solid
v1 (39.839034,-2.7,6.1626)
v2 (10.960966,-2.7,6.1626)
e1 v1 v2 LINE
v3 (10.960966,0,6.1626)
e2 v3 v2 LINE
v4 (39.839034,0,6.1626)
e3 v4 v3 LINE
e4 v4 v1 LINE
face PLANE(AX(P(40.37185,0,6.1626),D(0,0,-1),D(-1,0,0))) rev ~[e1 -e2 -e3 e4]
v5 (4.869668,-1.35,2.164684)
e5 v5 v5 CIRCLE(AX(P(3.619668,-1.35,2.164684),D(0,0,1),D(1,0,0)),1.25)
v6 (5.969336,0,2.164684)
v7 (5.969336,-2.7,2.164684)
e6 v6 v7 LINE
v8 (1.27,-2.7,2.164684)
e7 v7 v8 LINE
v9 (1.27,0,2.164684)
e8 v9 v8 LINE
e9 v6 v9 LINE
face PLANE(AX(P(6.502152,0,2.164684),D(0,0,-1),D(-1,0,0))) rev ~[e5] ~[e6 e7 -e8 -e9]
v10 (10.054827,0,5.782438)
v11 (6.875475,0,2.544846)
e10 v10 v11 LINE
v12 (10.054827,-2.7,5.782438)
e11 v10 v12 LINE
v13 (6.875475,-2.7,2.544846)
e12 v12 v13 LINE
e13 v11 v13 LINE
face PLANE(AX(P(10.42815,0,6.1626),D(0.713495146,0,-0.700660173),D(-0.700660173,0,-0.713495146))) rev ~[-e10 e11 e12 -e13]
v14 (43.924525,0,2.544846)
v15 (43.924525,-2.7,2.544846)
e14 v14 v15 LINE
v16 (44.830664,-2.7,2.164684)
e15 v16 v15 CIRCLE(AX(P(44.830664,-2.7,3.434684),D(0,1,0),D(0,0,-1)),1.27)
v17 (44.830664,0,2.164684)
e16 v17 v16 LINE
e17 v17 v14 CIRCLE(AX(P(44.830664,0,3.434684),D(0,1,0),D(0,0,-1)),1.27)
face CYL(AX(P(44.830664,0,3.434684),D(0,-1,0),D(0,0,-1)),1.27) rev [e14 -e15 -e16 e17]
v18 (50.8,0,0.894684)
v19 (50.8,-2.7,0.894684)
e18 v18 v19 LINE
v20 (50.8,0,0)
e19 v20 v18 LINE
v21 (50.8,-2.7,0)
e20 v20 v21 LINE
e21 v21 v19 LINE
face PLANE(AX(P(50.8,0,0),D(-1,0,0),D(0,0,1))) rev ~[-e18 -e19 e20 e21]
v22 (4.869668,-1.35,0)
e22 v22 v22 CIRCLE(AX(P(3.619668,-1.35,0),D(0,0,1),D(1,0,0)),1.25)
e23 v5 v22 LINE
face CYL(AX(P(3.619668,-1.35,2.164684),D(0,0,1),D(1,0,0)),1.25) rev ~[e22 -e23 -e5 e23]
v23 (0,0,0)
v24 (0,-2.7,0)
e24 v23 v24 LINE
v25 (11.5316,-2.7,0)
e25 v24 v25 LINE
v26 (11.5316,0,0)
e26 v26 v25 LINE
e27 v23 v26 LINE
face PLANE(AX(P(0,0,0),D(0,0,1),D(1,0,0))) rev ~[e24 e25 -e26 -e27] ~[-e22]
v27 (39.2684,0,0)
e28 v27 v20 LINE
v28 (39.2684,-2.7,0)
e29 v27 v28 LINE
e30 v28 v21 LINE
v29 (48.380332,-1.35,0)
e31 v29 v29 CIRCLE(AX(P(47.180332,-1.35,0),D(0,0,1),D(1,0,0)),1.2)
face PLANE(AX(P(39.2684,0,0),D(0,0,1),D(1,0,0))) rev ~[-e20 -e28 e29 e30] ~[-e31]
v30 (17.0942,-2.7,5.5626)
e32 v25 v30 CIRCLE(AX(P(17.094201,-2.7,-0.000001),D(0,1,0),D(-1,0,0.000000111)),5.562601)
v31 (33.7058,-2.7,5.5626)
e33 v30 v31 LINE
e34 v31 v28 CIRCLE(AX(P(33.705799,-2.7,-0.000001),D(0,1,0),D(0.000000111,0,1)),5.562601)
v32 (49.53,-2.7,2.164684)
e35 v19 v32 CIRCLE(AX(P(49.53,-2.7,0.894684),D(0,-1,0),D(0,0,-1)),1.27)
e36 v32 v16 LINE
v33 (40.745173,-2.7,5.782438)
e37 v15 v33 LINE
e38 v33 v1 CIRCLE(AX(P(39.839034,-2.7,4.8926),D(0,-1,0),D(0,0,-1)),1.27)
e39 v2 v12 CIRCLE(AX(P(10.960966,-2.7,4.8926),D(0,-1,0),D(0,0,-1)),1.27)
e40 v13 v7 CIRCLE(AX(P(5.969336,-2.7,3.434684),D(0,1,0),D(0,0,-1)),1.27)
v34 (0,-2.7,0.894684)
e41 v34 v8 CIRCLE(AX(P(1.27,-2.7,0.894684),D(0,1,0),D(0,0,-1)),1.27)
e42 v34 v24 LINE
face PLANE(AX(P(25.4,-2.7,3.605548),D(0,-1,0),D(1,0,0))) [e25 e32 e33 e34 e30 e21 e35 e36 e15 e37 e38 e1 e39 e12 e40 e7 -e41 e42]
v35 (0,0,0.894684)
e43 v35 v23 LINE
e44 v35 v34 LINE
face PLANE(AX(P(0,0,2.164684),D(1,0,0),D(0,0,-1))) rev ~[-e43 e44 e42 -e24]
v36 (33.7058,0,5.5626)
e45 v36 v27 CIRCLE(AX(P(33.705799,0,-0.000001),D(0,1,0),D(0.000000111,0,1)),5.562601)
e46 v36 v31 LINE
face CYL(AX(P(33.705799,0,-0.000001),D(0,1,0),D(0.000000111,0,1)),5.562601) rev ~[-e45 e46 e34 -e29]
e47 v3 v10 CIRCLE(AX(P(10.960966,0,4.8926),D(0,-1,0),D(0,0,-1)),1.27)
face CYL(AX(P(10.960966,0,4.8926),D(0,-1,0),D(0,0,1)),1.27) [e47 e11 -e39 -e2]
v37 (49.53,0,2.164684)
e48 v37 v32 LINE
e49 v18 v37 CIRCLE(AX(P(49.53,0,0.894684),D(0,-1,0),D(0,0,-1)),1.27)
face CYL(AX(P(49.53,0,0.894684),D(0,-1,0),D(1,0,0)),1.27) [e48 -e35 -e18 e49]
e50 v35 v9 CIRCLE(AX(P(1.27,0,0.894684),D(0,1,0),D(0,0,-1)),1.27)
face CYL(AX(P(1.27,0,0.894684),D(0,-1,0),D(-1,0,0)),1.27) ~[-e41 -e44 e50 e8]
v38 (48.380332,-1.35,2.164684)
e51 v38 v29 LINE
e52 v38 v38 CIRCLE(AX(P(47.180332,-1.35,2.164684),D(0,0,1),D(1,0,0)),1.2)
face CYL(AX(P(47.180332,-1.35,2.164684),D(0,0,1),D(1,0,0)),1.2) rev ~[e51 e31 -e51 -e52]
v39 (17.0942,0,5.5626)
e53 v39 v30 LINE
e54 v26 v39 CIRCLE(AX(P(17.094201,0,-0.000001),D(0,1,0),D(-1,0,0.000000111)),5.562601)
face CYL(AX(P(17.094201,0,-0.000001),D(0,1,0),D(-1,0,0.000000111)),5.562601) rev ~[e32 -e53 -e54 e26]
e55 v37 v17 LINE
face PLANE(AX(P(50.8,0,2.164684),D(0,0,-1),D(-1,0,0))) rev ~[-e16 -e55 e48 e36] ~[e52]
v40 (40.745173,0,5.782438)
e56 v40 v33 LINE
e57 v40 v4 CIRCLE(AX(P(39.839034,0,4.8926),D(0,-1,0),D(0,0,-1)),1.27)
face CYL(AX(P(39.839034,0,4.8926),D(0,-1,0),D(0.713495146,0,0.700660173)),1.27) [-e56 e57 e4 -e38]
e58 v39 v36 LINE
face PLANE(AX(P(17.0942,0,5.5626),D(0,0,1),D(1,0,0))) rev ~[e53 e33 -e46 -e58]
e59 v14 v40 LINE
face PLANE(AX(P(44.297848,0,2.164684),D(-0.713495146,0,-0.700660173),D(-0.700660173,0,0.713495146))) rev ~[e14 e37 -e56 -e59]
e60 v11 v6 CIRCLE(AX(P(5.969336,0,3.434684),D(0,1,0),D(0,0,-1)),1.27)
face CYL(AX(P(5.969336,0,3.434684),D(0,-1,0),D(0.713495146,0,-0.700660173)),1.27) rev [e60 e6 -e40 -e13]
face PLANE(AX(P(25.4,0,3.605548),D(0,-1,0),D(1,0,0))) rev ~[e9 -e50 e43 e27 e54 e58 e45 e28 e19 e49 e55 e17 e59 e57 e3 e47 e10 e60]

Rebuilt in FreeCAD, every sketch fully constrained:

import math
import FreeCAD as App
import Part
import Sketcher
from FreeCAD import Vector
Q = App.Units.Quantity


def edges_at(feature, points):
    """Names of the edges that pass closest to the given points."""
    edges = feature.Shape.Edges
    near = lambda p: min(range(len(edges)), key=lambda i: edges[i].distToShape(Part.Vertex(*p))[0])
    return sorted({f"Edge{near(p) + 1}" for p in points})

doc = App.newDocument("Part")
body = doc.addObject("PartDesign::Body", "Body")

sketch1 = body.newObject("Sketcher::SketchObject", "Sketch")
sketch1.AttachmentSupport = (doc.getObject("XZ_Plane"), [""])
sketch1.MapMode = "FlatFace"
sketch1.addGeometry(Part.LineSegment(Vector(0, 2.2, 0), Vector(0, 0, 0)), False)
sketch1.addGeometry(Part.LineSegment(Vector(0, 0, 0), Vector(11.5, 0, 0)), False)
sketch1.addGeometry(Part.ArcOfCircle(Part.Circle(Vector(17.1, 0, 0), Vector(0, 0, 1), 5.6), math.radians(90), math.radians(180)), False)
sketch1.addGeometry(Part.LineSegment(Vector(17.1, 5.6, 0), Vector(33.7, 5.6, 0)), False)
sketch1.addGeometry(Part.ArcOfCircle(Part.Circle(Vector(33.7, 0, 0), Vector(0, 0, 1), 5.6), math.radians(0), math.radians(90)), False)
sketch1.addGeometry(Part.LineSegment(Vector(39.3, 0, 0), Vector(50.8, 0, 0)), False)
sketch1.addGeometry(Part.LineSegment(Vector(50.8, 0, 0), Vector(50.8, 2.2, 0)), False)
sketch1.addGeometry(Part.LineSegment(Vector(50.8, 2.2, 0), Vector(44.3, 2.2, 0)), False)
sketch1.addGeometry(Part.LineSegment(Vector(44.3, 2.2, 0), Vector(40.4, 6.2, 0)), False)
sketch1.addGeometry(Part.LineSegment(Vector(40.4, 6.2, 0), Vector(10.4, 6.2, 0)), False)
sketch1.addGeometry(Part.LineSegment(Vector(10.4, 6.2, 0), Vector(6.5, 2.2, 0)), False)
sketch1.addGeometry(Part.LineSegment(Vector(6.5, 2.2, 0), Vector(0, 2.2, 0)), False)
sketch1.addConstraint(Sketcher.Constraint("Coincident", 0, 2, 1, 1))
sketch1.addConstraint(Sketcher.Constraint("Coincident", 1, 2, 2, 2))
sketch1.addConstraint(Sketcher.Constraint("Tangent", 2, 1, 3, 1))
sketch1.addConstraint(Sketcher.Constraint("Tangent", 3, 2, 4, 2))
sketch1.addConstraint(Sketcher.Constraint("Coincident", 4, 1, 5, 1))
sketch1.addConstraint(Sketcher.Constraint("Coincident", 5, 2, 6, 1))
sketch1.addConstraint(Sketcher.Constraint("Coincident", 6, 2, 7, 1))
sketch1.addConstraint(Sketcher.Constraint("Coincident", 7, 2, 8, 1))
sketch1.addConstraint(Sketcher.Constraint("Coincident", 8, 2, 9, 1))
sketch1.addConstraint(Sketcher.Constraint("Coincident", 9, 2, 10, 1))
sketch1.addConstraint(Sketcher.Constraint("Coincident", 10, 2, 11, 1))
sketch1.addConstraint(Sketcher.Constraint("Coincident", 11, 2, 0, 1))
sketch1.addConstraint(Sketcher.Constraint("Vertical", 0))
sketch1.addConstraint(Sketcher.Constraint("Horizontal", 1))
sketch1.addConstraint(Sketcher.Constraint("Horizontal", 3))
sketch1.addConstraint(Sketcher.Constraint("Horizontal", 5))
sketch1.addConstraint(Sketcher.Constraint("Vertical", 6))
sketch1.addConstraint(Sketcher.Constraint("Horizontal", 7))
sketch1.addConstraint(Sketcher.Constraint("Horizontal", 9))
sketch1.addConstraint(Sketcher.Constraint("Horizontal", 11))
sketch1.addConstraint(Sketcher.Constraint("Coincident", 0, 2, -1, 1))
sketch1.addConstraint(Sketcher.Constraint("Equal", 2, 4))
sketch1.addConstraint(Sketcher.Constraint("PointOnObject", 2, 3, -1))
sketch1.addConstraint(Sketcher.Constraint("PointOnObject", 4, 1, -1))
sketch1.addConstraint(Sketcher.Constraint("Horizontal", 7, 2, 10, 2))
sketch1.addConstraint(Sketcher.Constraint("Equal", 1, 5))
sketch1.addConstraint(Sketcher.Constraint("Equal", 7, 11))
sketch1.addConstraint(Sketcher.Constraint("Equal", 8, 10))
sketch1.addConstraint(Sketcher.Constraint("DistanceX", -1, 1, 5, 2, Q("2 in")))
sketch1.addConstraint(Sketcher.Constraint("Radius", 2, Q("0.219 in")))
sketch1.addConstraint(Sketcher.Constraint("DistanceX", 1, 1, 1, 2, Q("0.454 in")))
sketch1.addConstraint(Sketcher.Constraint("Angle", 8, Q("134.479994 deg")))
sketch1.addConstraint(Sketcher.Constraint("DistanceX", 9, 2, 9, 1, Q("29.9437 mm")))
sketch1.addConstraint(Sketcher.Constraint("DistanceX", 7, 2, 7, 1, Q("6.502152 mm")))
sketch1.addConstraint(Sketcher.Constraint("DistanceY", -1, 1, 8, 2, Q("6.1626 mm")))
pad1 = body.newObject("PartDesign::Pad", "Pad")
pad1.Profile = sketch1
pad1.Length = 2.7
doc.recompute()

fillet = body.newObject("PartDesign::Fillet", "Fillet")
fillet.Base = (pad1, edges_at(pad1, [
    (50.8, -1.35, 2.165),
    (44.298, -1.35, 2.165),
    (40.372, -1.35, 6.163),
    (10.428, -1.35, 6.163),
    (6.502, -1.35, 2.165),
    (0, -1.35, 2.165),
]))
fillet.Radius = Q("0.05 in")

sketch2 = body.newObject("Sketcher::SketchObject", "Sketch001")
sketch2.AttachmentSupport = (doc.getObject("XY_Plane"), [""])
sketch2.MapMode = "FlatFace"
sketch2.AttachmentOffset = App.Placement(Vector(0, 0, 2.164684), App.Rotation())
sketch2.addGeometry(Part.Circle(Vector(3.6, -1.4, 0), Vector(0, 0, 1), 1.2), False)
sketch2.addConstraint(Sketcher.Constraint("Diameter", 0, Q("2.5 mm")))
sketch2.addConstraint(Sketcher.Constraint("DistanceY", 0, 3, -1, 1, Q("1.35 mm")))
sketch2.addConstraint(Sketcher.Constraint("DistanceX", -1, 1, 0, 3, Q("3.619668 mm")))
pocket1 = body.newObject("PartDesign::Pocket", "Pocket")
pocket1.Profile = sketch2
pocket1.Type = "ThroughAll"

sketch3 = body.newObject("Sketcher::SketchObject", "Sketch002")
sketch3.AttachmentSupport = (doc.getObject("XY_Plane"), [""])
sketch3.MapMode = "FlatFace"
sketch3.AttachmentOffset = App.Placement(Vector(0, 0, 2.164684), App.Rotation())
sketch3.addGeometry(Part.Circle(Vector(47.2, -1.4, 0), Vector(0, 0, 1), 1.2), False)
sketch3.addConstraint(Sketcher.Constraint("Diameter", 0, Q("2.4 mm")))
sketch3.addConstraint(Sketcher.Constraint("DistanceY", 0, 3, -1, 1, Q("1.35 mm")))
sketch3.addConstraint(Sketcher.Constraint("DistanceX", -1, 1, 0, 3, Q("47.180332 mm")))
pocket2 = body.newObject("PartDesign::Pocket", "Pocket001")
pocket2.Profile = sketch3
pocket2.Type = "ThroughAll"

doc.recompute()
